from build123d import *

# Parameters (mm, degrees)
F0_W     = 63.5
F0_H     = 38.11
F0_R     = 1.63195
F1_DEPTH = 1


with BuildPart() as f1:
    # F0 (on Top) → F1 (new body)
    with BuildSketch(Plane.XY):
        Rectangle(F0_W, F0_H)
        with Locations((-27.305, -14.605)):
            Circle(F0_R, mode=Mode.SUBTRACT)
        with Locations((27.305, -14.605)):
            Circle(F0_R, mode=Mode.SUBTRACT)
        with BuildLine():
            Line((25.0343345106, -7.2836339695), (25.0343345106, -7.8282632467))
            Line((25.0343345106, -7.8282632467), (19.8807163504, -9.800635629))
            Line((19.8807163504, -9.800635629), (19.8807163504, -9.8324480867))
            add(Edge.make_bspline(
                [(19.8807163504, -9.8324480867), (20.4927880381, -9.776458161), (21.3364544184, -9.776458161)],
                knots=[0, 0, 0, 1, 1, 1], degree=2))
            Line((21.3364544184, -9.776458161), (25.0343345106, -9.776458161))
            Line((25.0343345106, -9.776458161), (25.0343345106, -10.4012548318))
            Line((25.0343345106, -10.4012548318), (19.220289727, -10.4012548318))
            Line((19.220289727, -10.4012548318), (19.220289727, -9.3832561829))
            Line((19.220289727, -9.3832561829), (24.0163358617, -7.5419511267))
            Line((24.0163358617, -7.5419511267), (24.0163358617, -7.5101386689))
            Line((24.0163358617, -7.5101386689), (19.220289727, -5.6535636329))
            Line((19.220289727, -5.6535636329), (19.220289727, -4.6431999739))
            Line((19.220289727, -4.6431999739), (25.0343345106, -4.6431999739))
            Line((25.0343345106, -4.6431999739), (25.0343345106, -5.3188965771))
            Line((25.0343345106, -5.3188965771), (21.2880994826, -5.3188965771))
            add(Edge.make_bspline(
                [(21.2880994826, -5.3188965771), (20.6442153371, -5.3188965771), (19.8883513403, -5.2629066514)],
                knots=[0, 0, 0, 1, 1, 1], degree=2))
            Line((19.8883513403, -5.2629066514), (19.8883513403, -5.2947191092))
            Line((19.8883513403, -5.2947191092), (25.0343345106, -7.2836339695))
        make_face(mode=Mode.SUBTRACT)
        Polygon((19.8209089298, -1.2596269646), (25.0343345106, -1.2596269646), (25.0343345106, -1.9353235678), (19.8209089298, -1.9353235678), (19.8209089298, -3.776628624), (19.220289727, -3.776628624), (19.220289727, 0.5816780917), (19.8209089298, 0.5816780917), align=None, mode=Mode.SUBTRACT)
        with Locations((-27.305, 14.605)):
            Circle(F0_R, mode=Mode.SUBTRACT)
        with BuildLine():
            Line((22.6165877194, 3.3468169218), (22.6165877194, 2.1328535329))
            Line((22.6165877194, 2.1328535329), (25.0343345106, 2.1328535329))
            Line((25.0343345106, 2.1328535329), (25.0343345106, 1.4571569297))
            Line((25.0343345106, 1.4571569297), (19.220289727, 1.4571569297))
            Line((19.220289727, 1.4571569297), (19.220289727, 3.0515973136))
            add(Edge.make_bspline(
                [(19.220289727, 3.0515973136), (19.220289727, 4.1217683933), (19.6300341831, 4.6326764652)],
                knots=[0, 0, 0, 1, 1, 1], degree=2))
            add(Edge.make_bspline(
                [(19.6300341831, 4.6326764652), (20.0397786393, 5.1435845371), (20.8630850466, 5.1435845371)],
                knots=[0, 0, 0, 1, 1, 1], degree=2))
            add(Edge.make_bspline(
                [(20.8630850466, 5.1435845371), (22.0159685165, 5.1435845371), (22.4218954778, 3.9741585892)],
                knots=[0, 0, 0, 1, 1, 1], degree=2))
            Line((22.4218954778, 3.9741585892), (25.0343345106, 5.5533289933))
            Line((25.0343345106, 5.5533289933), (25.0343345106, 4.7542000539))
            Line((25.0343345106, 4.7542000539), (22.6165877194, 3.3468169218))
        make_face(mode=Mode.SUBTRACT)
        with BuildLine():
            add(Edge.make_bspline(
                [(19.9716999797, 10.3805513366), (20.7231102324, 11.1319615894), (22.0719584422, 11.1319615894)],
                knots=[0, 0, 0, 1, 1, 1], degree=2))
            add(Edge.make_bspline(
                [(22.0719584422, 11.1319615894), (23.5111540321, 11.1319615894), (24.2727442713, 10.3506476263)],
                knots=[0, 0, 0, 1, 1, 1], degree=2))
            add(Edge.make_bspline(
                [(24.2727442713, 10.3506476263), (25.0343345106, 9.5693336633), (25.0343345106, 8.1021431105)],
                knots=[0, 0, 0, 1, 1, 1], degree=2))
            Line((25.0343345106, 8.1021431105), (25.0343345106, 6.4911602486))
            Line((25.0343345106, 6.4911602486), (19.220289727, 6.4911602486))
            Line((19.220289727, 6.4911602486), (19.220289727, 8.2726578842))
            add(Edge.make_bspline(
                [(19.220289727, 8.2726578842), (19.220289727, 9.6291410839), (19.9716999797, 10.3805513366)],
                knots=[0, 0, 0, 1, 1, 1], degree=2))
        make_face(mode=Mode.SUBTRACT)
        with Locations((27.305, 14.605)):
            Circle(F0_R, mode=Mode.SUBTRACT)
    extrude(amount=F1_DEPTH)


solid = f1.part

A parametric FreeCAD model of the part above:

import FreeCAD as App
import Part
import Sketcher
from FreeCAD import Vector


def add_polygon(sketch, points):
    """Adds a closed chain of lines whose ends are joined by coincident constraints."""
    first, n = sketch.GeometryCount, len(points)
    for a, b in zip(points, points[1:] + points[:1]):
        sketch.addGeometry(Part.LineSegment(App.Vector(*a, 0), App.Vector(*b, 0)), False)
    for i in range(n):
        sketch.addConstraint(Sketcher.Constraint("Coincident", first + i, 2, first + (i + 1) % n, 1))

doc = App.newDocument("Part")
body = doc.addObject("PartDesign::Body", "Body")

sketch1 = doc.addObject("Sketcher::SketchObject", "Sketch")
body.addObject(sketch1)
sketch1.AttachmentSupport = (doc.XY_Plane, [""])
sketch1.MapMode = "FlatFace"
add_polygon(sketch1, [(-31.75, 19.055), (-31.75, -19.055), (31.75, -19.055), (31.75, 19.055)])
sketch1.addGeometry(Part.Circle(Vector(-27.305, -14.605, 0), Vector(0, 0, 1), 1.63195), False)
sketch1.addGeometry(Part.Circle(Vector(27.305, -14.605, 0), Vector(0, 0, 1), 1.63195), False)
sketch1.addGeometry(Part.LineSegment(Vector(19.888351, -5.294719, 0), Vector(25.034335, -7.283634, 0)), False)
sketch1.addGeometry(Part.LineSegment(Vector(25.034335, -7.283634, 0), Vector(25.034335, -7.828263, 0)), False)
sketch1.addGeometry(Part.LineSegment(Vector(25.034335, -7.828263, 0), Vector(19.880716, -9.800636, 0)), False)
sketch1.addGeometry(Part.LineSegment(Vector(19.880716, -9.800636, 0), Vector(19.880716, -9.832448, 0)), False)
sketch1.addGeometry(Part.BSplineCurve([Vector(19.880716, -9.832448, 0), Vector(20.492788, -9.776458, 0), Vector(21.336454, -9.776458, 0)], [3, 3], [0, 1], False, 2, [1, 1, 1], False), False)
sketch1.addGeometry(Part.LineSegment(Vector(21.336454, -9.776458, 0), Vector(25.034335, -9.776458, 0)), False)
sketch1.addGeometry(Part.LineSegment(Vector(25.034335, -9.776458, 0), Vector(25.034335, -10.401255, 0)), False)
sketch1.addGeometry(Part.LineSegment(Vector(25.034335, -10.401255, 0), Vector(19.22029, -10.401255, 0)), False)
sketch1.addGeometry(Part.LineSegment(Vector(19.22029, -10.401255, 0), Vector(19.22029, -9.383256, 0)), False)
sketch1.addGeometry(Part.LineSegment(Vector(19.22029, -9.383256, 0), Vector(24.016336, -7.541951, 0)), False)
sketch1.addGeometry(Part.LineSegment(Vector(24.016336, -7.541951, 0), Vector(24.016336, -7.510139, 0)), False)
sketch1.addGeometry(Part.LineSegment(Vector(24.016336, -7.510139, 0), Vector(19.22029, -5.653564, 0)), False)
sketch1.addGeometry(Part.LineSegment(Vector(19.22029, -5.653564, 0), Vector(19.22029, -4.6432, 0)), False)
sketch1.addGeometry(Part.LineSegment(Vector(19.22029, -4.6432, 0), Vector(25.034335, -4.6432, 0)), False)
sketch1.addGeometry(Part.LineSegment(Vector(25.034335, -4.6432, 0), Vector(25.034335, -5.318897, 0)), False)
sketch1.addGeometry(Part.LineSegment(Vector(25.034335, -5.318897, 0), Vector(21.288099, -5.318897, 0)), False)
sketch1.addGeometry(Part.BSplineCurve([Vector(21.288099, -5.318897, 0), Vector(20.644215, -5.318897, 0), Vector(19.888351, -5.262907, 0)], [3, 3], [0, 1], False, 2, [1, 1, 1], False), False)
sketch1.addGeometry(Part.LineSegment(Vector(19.888351, -5.262907, 0), Vector(19.888351, -5.294719, 0)), False)
add_polygon(sketch1, [(19.820909, 0.581678), (19.820909, -1.259627), (25.034335, -1.259627), (25.034335, -1.935324), (19.820909, -1.935324), (19.820909, -3.776629), (19.22029, -3.776629), (19.22029, 0.581678)])
sketch1.addGeometry(Part.Circle(Vector(-27.305, 14.605, 0), Vector(0, 0, 1), 1.63195), False)
sketch1.addGeometry(Part.LineSegment(Vector(25.034335, 4.7542, 0), Vector(22.616588, 3.346817, 0)), False)
sketch1.addGeometry(Part.LineSegment(Vector(22.616588, 3.346817, 0), Vector(22.616588, 2.132854, 0)), False)
sketch1.addGeometry(Part.LineSegment(Vector(22.616588, 2.132854, 0), Vector(25.034335, 2.132854, 0)), False)
sketch1.addGeometry(Part.LineSegment(Vector(25.034335, 2.132854, 0), Vector(25.034335, 1.457157, 0)), False)
sketch1.addGeometry(Part.LineSegment(Vector(25.034335, 1.457157, 0), Vector(19.22029, 1.457157, 0)), False)
sketch1.addGeometry(Part.LineSegment(Vector(19.22029, 1.457157, 0), Vector(19.22029, 3.051597, 0)), False)
sketch1.addGeometry(Part.BSplineCurve([Vector(19.22029, 3.051597, 0), Vector(19.22029, 4.121768, 0), Vector(19.630034, 4.632676, 0)], [3, 3], [0, 1], False, 2, [1, 1, 1], False), False)
sketch1.addGeometry(Part.BSplineCurve([Vector(19.630034, 4.632676, 0), Vector(20.039779, 5.143585, 0), Vector(22.015969, 5.143585, 0), Vector(22.421895, 3.974159, 0)], [3, 1, 3], [0, 1, 2.400309119], False, 2, [1, 1, 1, 1], False), False)
sketch1.addGeometry(Part.LineSegment(Vector(22.421895, 3.974159, 0), Vector(25.034335, 5.553329, 0)), False)
sketch1.addGeometry(Part.LineSegment(Vector(25.034335, 5.553329, 0), Vector(25.034335, 4.7542, 0)), False)
sketch1.addGeometry(Part.BSplineCurve([Vector(19.22029, 8.272658, 0), Vector(19.22029, 9.629141, 0), Vector(19.9717, 10.380551, 0)], [3, 3], [0, 1], False, 2, [1, 1, 1], False), False)
sketch1.addGeometry(Part.BSplineCurve([Vector(19.9717, 10.380551, 0), Vector(20.72311, 11.131962, 0), Vector(23.511154, 11.131962, 0), Vector(24.272744, 10.350648, 0)], [3, 1, 3], [0, 1, 2.066981132], False, 2, [1, 1, 1, 1], False), False)
sketch1.addGeometry(Part.BSplineCurve([Vector(24.272744, 10.350648, 0), Vector(25.034335, 9.569334, 0), Vector(25.034335, 8.102143, 0)], [3, 3], [0, 1], False, 2, [1, 1, 1], False), False)
sketch1.addGeometry(Part.LineSegment(Vector(25.034335, 8.102143, 0), Vector(25.034335, 6.49116, 0)), False)
sketch1.addGeometry(Part.LineSegment(Vector(25.034335, 6.49116, 0), Vector(19.22029, 6.49116, 0)), False)
sketch1.addGeometry(Part.LineSegment(Vector(19.22029, 6.49116, 0), Vector(19.22029, 8.272658, 0)), False)
sketch1.addGeometry(Part.Circle(Vector(27.305, 14.605, 0), Vector(0, 0, 1), 1.63195), False)
sketch1.addConstraint([
    Sketcher.Constraint("Block", 10),
    Sketcher.Constraint("Block", 22),
    Sketcher.Constraint("Block", 39),
    Sketcher.Constraint("Block", 40),
    Sketcher.Constraint("Block", 43),
    Sketcher.Constraint("Block", 44),
    Sketcher.Constraint("Block", 45),
    Sketcher.Constraint("Coincident", 6, 2, 7, 1),
    Sketcher.Constraint("Coincident", 7, 2, 8, 1),
    Sketcher.Constraint("Coincident", 8, 2, 9, 1),
    Sketcher.Constraint("Coincident", 9, 2, 10, 1),
    Sketcher.Constraint("Coincident", 10, 2, 11, 1),
    Sketcher.Constraint("Coincident", 11, 2, 12, 1),
    Sketcher.Constraint("Coincident", 12, 2, 13, 1),
    Sketcher.Constraint("Coincident", 13, 2, 14, 1),
    Sketcher.Constraint("Coincident", 14, 2, 15, 1),
    Sketcher.Constraint("Coincident", 15, 2, 16, 1),
    Sketcher.Constraint("Coincident", 16, 2, 17, 1),
    Sketcher.Constraint("Coincident", 17, 2, 18, 1),
    Sketcher.Constraint("Coincident", 18, 2, 19, 1),
    Sketcher.Constraint("Coincident", 19, 2, 20, 1),
    Sketcher.Constraint("Coincident", 20, 2, 21, 1),
    Sketcher.Constraint("Coincident", 21, 2, 22, 1),
    Sketcher.Constraint("Coincident", 22, 2, 23, 1),
    Sketcher.Constraint("Coincident", 23, 2, 6, 1),
    Sketcher.Constraint("Coincident", 33, 2, 34, 1),
    Sketcher.Constraint("Coincident", 34, 2, 35, 1),
    Sketcher.Constraint("Coincident", 35, 2, 36, 1),
    Sketcher.Constraint("Coincident", 36, 2, 37, 1),
    Sketcher.Constraint("Coincident", 37, 2, 38, 1),
    Sketcher.Constraint("Coincident", 38, 2, 39, 1),
    Sketcher.Constraint("Coincident", 40, 2, 41, 1),
    Sketcher.Constraint("Coincident", 41, 2, 42, 1),
    Sketcher.Constraint("Coincident", 42, 2, 33, 1),
    Sketcher.Constraint("Coincident", 45, 2, 46, 1),
    Sketcher.Constraint("Coincident", 46, 2, 47, 1),
    Sketcher.Constraint("Coincident", 47, 2, 48, 1),
    Sketcher.Constraint("Coincident", 48, 2, 43, 1),
    Sketcher.Constraint("Vertical", 0),
    Sketcher.Constraint("Horizontal", 1),
    Sketcher.Constraint("Vertical", 2),
    Sketcher.Constraint("Horizontal", 3),
    Sketcher.Constraint("Vertical", 7),
    Sketcher.Constraint("Vertical", 9),
    Sketcher.Constraint("Horizontal", 11),
    Sketcher.Constraint("Vertical", 12),
    Sketcher.Constraint("Horizontal", 13),
    Sketcher.Constraint("Vertical", 14),
    Sketcher.Constraint("Vertical", 16),
    Sketcher.Constraint("Vertical", 18),
    Sketcher.Constraint("Horizontal", 19),
    Sketcher.Constraint("Vertical", 20),
    Sketcher.Constraint("Horizontal", 21),
    Sketcher.Constraint("Vertical", 23),
    Sketcher.Constraint("Vertical", 24),
    Sketcher.Constraint("Horizontal", 25),
    Sketcher.Constraint("Vertical", 26),
    Sketcher.Constraint("Horizontal", 27),
    Sketcher.Constraint("Vertical", 28),
    Sketcher.Constraint("Horizontal", 29),
    Sketcher.Constraint("Vertical", 30),
    Sketcher.Constraint("Horizontal", 31),
    Sketcher.Constraint("Vertical", 34),
    Sketcher.Constraint("Horizontal", 35),
    Sketcher.Constraint("Vertical", 36),
    Sketcher.Constraint("Horizontal", 37),
    Sketcher.Constraint("Vertical", 38),
    Sketcher.Constraint("Vertical", 42),
    Sketcher.Constraint("Vertical", 46),
    Sketcher.Constraint("Horizontal", 47),
    Sketcher.Constraint("Vertical", 48),
    Sketcher.Constraint("Equal", 4, 5),
    Sketcher.Constraint("Equal", 5, 32),
    Sketcher.Constraint("Equal", 32, 49),
    Sketcher.Constraint("Symmetric", 5, 3, 32, 3, -1, 1),
    Sketcher.Constraint("Symmetric", 4, 3, 49, 3, -1, 1),
    Sketcher.Constraint("Symmetric", 0, 2, 2, 2, -1, 1),
    Sketcher.Constraint("Symmetric", 4, 3, 5, 3, -2),
    Sketcher.Constraint("Vertical", 7, 2, 11, 2),
    Sketcher.Constraint("Vertical", 14, 2, 17, 2),
    Sketcher.Constraint("Vertical", 12, 2, 19, 2),
    Sketcher.Constraint("Vertical", 20, 2, 25, 2),
    Sketcher.Constraint("Vertical", 24, 2, 27, 2),
    Sketcher.Constraint("Vertical", 18, 2, 29, 2),
    Sketcher.Constraint("Vertical", 26, 2, 35, 2),
    Sketcher.Constraint("Vertical", 30, 2, 37, 2),
    Sketcher.Constraint("Vertical", 36, 2, 41, 2),
    Sketcher.Constraint("Vertical", 42, 2, 46, 2),
    Sketcher.Constraint("Equal", 9, 16),
    Sketcher.Constraint("Equal", 16, 23),
    Sketcher.Constraint("Equal", 20, 26),
    Sketcher.Constraint("Equal", 24, 28),
    Sketcher.Constraint("Equal", 26, 36),
    Sketcher.Constraint("DistanceX", 1, 1, 1, 2, 63.5),
    Sketcher.Constraint("Diameter", 4, 3.2639),
    Sketcher.Constraint("DistanceY", 0, 2, 0, 1, 38.11),
    Sketcher.Constraint("DistanceY", 14, 1, 14, 2, 1.017999),
    Sketcher.Constraint("DistanceX", 4, 3, 5, 3, 54.61),
    Sketcher.Constraint("DistanceY", 4, 3, 32, 3, 29.21),
    Sketcher.Constraint("DistanceY", 8, 2, 6, 2, 2.517002),
    Sketcher.Constraint("DistanceX", 15, 2, 6, 2, 1.017999),
    Sketcher.Constraint("DistanceY", 27, 2, 30, 2, 2.517002),
    Sketcher.Constraint("DistanceX", 29, 2, 29, 1, 0.600619),
    Sketcher.Constraint("DistanceY", 7, 2, 7, 1, 0.544629),
    Sketcher.Constraint("DistanceY", 38, 1, 38, 2, 1.59444),
    Sketcher.Constraint("DistanceY", 42, 2, 42, 1, 0.799129),
    Sketcher.Constraint("DistanceY", 18, 2, -1, 1, 4.6432),
    Sketcher.Constraint("DistanceY", -1, 1, 42, 2, 4.7542),
    Sketcher.Constraint("DistanceY", 11, 2, 14, 2, 0.393202),
    Sketcher.Constraint("Distance", 15, 5.13736),
    Sketcher.Constraint("Distance", 33, 2.797539),
    Sketcher.Constraint("DistanceX", 35, 1, 35, 2, 2.417747),
    Sketcher.Constraint("DistanceY", 9, 2, 9, 1, 0.031812),
    Sketcher.Constraint("DistanceY", 18, 1, 18, 2, 1.010364),
    Sketcher.Constraint("DistanceY", 46, 2, 46, 1, 1.610983),
    Sketcher.Constraint("DistanceY", 28, 2, -1, 1, 3.776629),
])
pad1 = doc.addObject("PartDesign::Pad", "Pad")
body.addObject(pad1)
pad1.Profile = sketch1
pad1.Length = 1

doc.recompute()
